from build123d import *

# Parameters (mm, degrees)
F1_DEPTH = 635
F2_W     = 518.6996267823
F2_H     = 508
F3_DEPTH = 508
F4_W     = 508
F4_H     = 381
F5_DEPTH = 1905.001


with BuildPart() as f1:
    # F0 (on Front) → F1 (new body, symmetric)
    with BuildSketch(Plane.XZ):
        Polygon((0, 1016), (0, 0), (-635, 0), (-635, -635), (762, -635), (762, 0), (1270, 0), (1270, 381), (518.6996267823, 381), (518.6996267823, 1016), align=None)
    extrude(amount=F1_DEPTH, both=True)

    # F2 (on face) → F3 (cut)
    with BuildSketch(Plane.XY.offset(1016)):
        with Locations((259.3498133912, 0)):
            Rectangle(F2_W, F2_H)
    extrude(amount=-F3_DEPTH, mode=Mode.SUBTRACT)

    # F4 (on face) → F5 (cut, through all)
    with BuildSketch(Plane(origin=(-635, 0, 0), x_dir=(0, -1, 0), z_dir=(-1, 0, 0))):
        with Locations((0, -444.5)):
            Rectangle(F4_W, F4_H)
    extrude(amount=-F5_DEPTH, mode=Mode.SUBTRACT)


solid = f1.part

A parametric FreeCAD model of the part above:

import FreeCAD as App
import Part
import Sketcher
from FreeCAD import Vector
Q = App.Units.Quantity

doc = App.newDocument("Part")
params = doc.addObject("Spreadsheet::Sheet", "Params")
for row, (alias, value) in enumerate([
    ("sketch1_width", "25 in"),
    ("sketch1_width2", "55 in"),
    ("sketch1_width3", "20 in"),
    ("sketch1_height", "40 in"),
    ("pad1_length", "50 in"),
    ("sketch2_height", "20 in"),
    ("pocket1_length", "20 in"),
    ("sketch3_width", "20 in"),
    ("sketch3_height", "15 in"),
], start=1):
    params.set(f"A{row}", alias)
    params.set(f"B{row}", "=" + value)
    params.setAlias(f"B{row}", alias)

body = doc.addObject("PartDesign::Body", "Body")

sketch1 = body.newObject("Sketcher::SketchObject", "Sketch")
sketch1.AttachmentSupport = (doc.getObject("XZ_Plane"), [""])
sketch1.MapMode = "FlatFace"
sketch1.addGeometry(Part.LineSegment(Vector(0, 1016, 0), Vector(0, 0, 0)), False)
sketch1.addGeometry(Part.LineSegment(Vector(0, 0, 0), Vector(-635, 0, 0)), False)
sketch1.addGeometry(Part.LineSegment(Vector(-635, 0, 0), Vector(-635, -635, 0)), False)
sketch1.addGeometry(Part.LineSegment(Vector(-635, -635, 0), Vector(762, -635, 0)), False)
sketch1.addGeometry(Part.LineSegment(Vector(762, -635, 0), Vector(762, 0, 0)), False)
sketch1.addGeometry(Part.LineSegment(Vector(762, 0, 0), Vector(1270, 0, 0)), False)
sketch1.addGeometry(Part.LineSegment(Vector(1270, 0, 0), Vector(1270, 381, 0)), False)
sketch1.addGeometry(Part.LineSegment(Vector(1270, 381, 0), Vector(518.699627, 381, 0)), False)
sketch1.addGeometry(Part.LineSegment(Vector(518.699627, 381, 0), Vector(518.699627, 1016, 0)), False)
sketch1.addGeometry(Part.LineSegment(Vector(518.699627, 1016, 0), Vector(0, 1016, 0)), False)
sketch1.addConstraint(Sketcher.Constraint("Coincident", 0, 2, 1, 1))
sketch1.addConstraint(Sketcher.Constraint("Coincident", 1, 2, 2, 1))
sketch1.addConstraint(Sketcher.Constraint("Coincident", 2, 2, 3, 1))
sketch1.addConstraint(Sketcher.Constraint("Coincident", 3, 2, 4, 1))
sketch1.addConstraint(Sketcher.Constraint("Coincident", 4, 2, 5, 1))
sketch1.addConstraint(Sketcher.Constraint("Coincident", 5, 2, 6, 1))
sketch1.addConstraint(Sketcher.Constraint("Coincident", 6, 2, 7, 1))
sketch1.addConstraint(Sketcher.Constraint("Coincident", 7, 2, 8, 1))
sketch1.addConstraint(Sketcher.Constraint("Coincident", 8, 2, 9, 1))
sketch1.addConstraint(Sketcher.Constraint("Coincident", 9, 2, 0, 1))
sketch1.addConstraint(Sketcher.Constraint("Vertical", 0))
sketch1.addConstraint(Sketcher.Constraint("Horizontal", 1))
sketch1.addConstraint(Sketcher.Constraint("Vertical", 2))
sketch1.addConstraint(Sketcher.Constraint("Horizontal", 3))
sketch1.addConstraint(Sketcher.Constraint("Vertical", 4))
sketch1.addConstraint(Sketcher.Constraint("Horizontal", 5))
sketch1.addConstraint(Sketcher.Constraint("Vertical", 6))
sketch1.addConstraint(Sketcher.Constraint("Horizontal", 7))
sketch1.addConstraint(Sketcher.Constraint("Vertical", 8))
sketch1.addConstraint(Sketcher.Constraint("Horizontal", 9))
sketch1.addConstraint(Sketcher.Constraint("Coincident", 0, 2, -1, 1))
sketch1.addConstraint(Sketcher.Constraint("PointOnObject", 4, 2, -1))
sketch1.addConstraint(Sketcher.Constraint("Equal", 1, 2))
sketch1.addConstraint(Sketcher.Constraint("Equal", 4, 8))
sketch1.addConstraint(Sketcher.Constraint("DistanceX", 1, 2, 1, 1, Q("25 in")))
sketch1.addConstraint(Sketcher.Constraint("DistanceX", 3, 1, 3, 2, Q("55 in")))
sketch1.addConstraint(Sketcher.Constraint("DistanceX", 5, 1, 5, 2, Q("20 in")))
sketch1.addConstraint(Sketcher.Constraint("DistanceY", 0, 2, 0, 1, Q("40 in")))
sketch1.addConstraint(Sketcher.Constraint("DistanceX", 7, 2, 7, 1, 751.300373))
sketch1.setExpression("Constraints[24]", "Params.sketch1_width")
sketch1.setExpression("Constraints[25]", "Params.sketch1_width2")
sketch1.setExpression("Constraints[26]", "Params.sketch1_width3")
sketch1.setExpression("Constraints[27]", "Params.sketch1_height")
pad1 = body.newObject("PartDesign::Pad", "Pad")
pad1.Profile = sketch1
pad1.setExpression("Length", "Params.pad1_length")
pad1.Midplane = True

sketch2 = body.newObject("Sketcher::SketchObject", "Sketch001")
sketch2.AttachmentSupport = (doc.getObject("XY_Plane"), [""])
sketch2.MapMode = "FlatFace"
sketch2.AttachmentOffset = App.Placement(Vector(0, 0, 40 * 25.4), App.Rotation())
sketch2.addGeometry(Part.LineSegment(Vector(0, 254, 0), Vector(0, -254, 0)), False)
sketch2.addGeometry(Part.LineSegment(Vector(0, -254, 0), Vector(518.699627, -254, 0)), False)
sketch2.addGeometry(Part.LineSegment(Vector(518.699627, -254, 0), Vector(518.699627, 254, 0)), False)
sketch2.addGeometry(Part.LineSegment(Vector(518.699627, 254, 0), Vector(0, 254, 0)), False)
sketch2.addConstraint(Sketcher.Constraint("Coincident", 0, 2, 1, 1))
sketch2.addConstraint(Sketcher.Constraint("Coincident", 1, 2, 2, 1))
sketch2.addConstraint(Sketcher.Constraint("Coincident", 2, 2, 3, 1))
sketch2.addConstraint(Sketcher.Constraint("Coincident", 3, 2, 0, 1))
sketch2.addConstraint(Sketcher.Constraint("Vertical", 0))
sketch2.addConstraint(Sketcher.Constraint("Horizontal", 1))
sketch2.addConstraint(Sketcher.Constraint("Vertical", 2))
sketch2.addConstraint(Sketcher.Constraint("Horizontal", 3))
sketch2.addConstraint(Sketcher.Constraint("Symmetric", 0, 2, 3, 2, -1, 1))
sketch2.addConstraint(Sketcher.Constraint("DistanceY", 0, 2, 0, 1, Q("20 in")))
sketch2.addConstraint(Sketcher.Constraint("DistanceX", 1, 1, 1, 2, 518.699627))
sketch2.setExpression("Constraints[9]", "Params.sketch2_height")
pocket1 = body.newObject("PartDesign::Pocket", "Pocket")
pocket1.Profile = sketch2
pocket1.setExpression("Length", "Params.pocket1_length")

sketch3 = body.newObject("Sketcher::SketchObject", "Sketch002")
sketch3.AttachmentSupport = (doc.getObject("YZ_Plane"), [""])
sketch3.MapMode = "FlatFace"
sketch3.AttachmentOffset = App.Placement(Vector(0, 0, -25 * 25.4), App.Rotation())
sketch3.addGeometry(Part.LineSegment(Vector(254, -254, 0), Vector(254, -635, 0)), False)
sketch3.addGeometry(Part.LineSegment(Vector(254, -635, 0), Vector(-254, -635, 0)), False)
sketch3.addGeometry(Part.LineSegment(Vector(-254, -635, 0), Vector(-254, -254, 0)), False)
sketch3.addGeometry(Part.LineSegment(Vector(-254, -254, 0), Vector(254, -254, 0)), False)
sketch3.addConstraint(Sketcher.Constraint("Coincident", 0, 2, 1, 1))
sketch3.addConstraint(Sketcher.Constraint("Coincident", 1, 2, 2, 1))
sketch3.addConstraint(Sketcher.Constraint("Coincident", 2, 2, 3, 1))
sketch3.addConstraint(Sketcher.Constraint("Coincident", 3, 2, 0, 1))
sketch3.addConstraint(Sketcher.Constraint("Vertical", 0))
sketch3.addConstraint(Sketcher.Constraint("Horizontal", 1))
sketch3.addConstraint(Sketcher.Constraint("Vertical", 2))
sketch3.addConstraint(Sketcher.Constraint("Horizontal", 3))
sketch3.addConstraint(Sketcher.Constraint("DistanceX", 1, 2, 1, 1, Q("20 in")))
sketch3.addConstraint(Sketcher.Constraint("DistanceY", 0, 2, 0, 1, Q("15 in")))
sketch3.addConstraint(Sketcher.Constraint("DistanceX", -1, 1, 0, 2, Q("10 in")))
sketch3.addConstraint(Sketcher.Constraint("DistanceY", 0, 2, -1, 1, Q("25 in")))
sketch3.setExpression("Constraints[8]", "Params.sketch3_width")
sketch3.setExpression("Constraints[9]", "Params.sketch3_height")
pocket2 = body.newObject("PartDesign::Pocket", "Pocket001")
pocket2.Profile = sketch3
pocket2.Type = "ThroughAll"
pocket2.Reversed = True

doc.recompute()
